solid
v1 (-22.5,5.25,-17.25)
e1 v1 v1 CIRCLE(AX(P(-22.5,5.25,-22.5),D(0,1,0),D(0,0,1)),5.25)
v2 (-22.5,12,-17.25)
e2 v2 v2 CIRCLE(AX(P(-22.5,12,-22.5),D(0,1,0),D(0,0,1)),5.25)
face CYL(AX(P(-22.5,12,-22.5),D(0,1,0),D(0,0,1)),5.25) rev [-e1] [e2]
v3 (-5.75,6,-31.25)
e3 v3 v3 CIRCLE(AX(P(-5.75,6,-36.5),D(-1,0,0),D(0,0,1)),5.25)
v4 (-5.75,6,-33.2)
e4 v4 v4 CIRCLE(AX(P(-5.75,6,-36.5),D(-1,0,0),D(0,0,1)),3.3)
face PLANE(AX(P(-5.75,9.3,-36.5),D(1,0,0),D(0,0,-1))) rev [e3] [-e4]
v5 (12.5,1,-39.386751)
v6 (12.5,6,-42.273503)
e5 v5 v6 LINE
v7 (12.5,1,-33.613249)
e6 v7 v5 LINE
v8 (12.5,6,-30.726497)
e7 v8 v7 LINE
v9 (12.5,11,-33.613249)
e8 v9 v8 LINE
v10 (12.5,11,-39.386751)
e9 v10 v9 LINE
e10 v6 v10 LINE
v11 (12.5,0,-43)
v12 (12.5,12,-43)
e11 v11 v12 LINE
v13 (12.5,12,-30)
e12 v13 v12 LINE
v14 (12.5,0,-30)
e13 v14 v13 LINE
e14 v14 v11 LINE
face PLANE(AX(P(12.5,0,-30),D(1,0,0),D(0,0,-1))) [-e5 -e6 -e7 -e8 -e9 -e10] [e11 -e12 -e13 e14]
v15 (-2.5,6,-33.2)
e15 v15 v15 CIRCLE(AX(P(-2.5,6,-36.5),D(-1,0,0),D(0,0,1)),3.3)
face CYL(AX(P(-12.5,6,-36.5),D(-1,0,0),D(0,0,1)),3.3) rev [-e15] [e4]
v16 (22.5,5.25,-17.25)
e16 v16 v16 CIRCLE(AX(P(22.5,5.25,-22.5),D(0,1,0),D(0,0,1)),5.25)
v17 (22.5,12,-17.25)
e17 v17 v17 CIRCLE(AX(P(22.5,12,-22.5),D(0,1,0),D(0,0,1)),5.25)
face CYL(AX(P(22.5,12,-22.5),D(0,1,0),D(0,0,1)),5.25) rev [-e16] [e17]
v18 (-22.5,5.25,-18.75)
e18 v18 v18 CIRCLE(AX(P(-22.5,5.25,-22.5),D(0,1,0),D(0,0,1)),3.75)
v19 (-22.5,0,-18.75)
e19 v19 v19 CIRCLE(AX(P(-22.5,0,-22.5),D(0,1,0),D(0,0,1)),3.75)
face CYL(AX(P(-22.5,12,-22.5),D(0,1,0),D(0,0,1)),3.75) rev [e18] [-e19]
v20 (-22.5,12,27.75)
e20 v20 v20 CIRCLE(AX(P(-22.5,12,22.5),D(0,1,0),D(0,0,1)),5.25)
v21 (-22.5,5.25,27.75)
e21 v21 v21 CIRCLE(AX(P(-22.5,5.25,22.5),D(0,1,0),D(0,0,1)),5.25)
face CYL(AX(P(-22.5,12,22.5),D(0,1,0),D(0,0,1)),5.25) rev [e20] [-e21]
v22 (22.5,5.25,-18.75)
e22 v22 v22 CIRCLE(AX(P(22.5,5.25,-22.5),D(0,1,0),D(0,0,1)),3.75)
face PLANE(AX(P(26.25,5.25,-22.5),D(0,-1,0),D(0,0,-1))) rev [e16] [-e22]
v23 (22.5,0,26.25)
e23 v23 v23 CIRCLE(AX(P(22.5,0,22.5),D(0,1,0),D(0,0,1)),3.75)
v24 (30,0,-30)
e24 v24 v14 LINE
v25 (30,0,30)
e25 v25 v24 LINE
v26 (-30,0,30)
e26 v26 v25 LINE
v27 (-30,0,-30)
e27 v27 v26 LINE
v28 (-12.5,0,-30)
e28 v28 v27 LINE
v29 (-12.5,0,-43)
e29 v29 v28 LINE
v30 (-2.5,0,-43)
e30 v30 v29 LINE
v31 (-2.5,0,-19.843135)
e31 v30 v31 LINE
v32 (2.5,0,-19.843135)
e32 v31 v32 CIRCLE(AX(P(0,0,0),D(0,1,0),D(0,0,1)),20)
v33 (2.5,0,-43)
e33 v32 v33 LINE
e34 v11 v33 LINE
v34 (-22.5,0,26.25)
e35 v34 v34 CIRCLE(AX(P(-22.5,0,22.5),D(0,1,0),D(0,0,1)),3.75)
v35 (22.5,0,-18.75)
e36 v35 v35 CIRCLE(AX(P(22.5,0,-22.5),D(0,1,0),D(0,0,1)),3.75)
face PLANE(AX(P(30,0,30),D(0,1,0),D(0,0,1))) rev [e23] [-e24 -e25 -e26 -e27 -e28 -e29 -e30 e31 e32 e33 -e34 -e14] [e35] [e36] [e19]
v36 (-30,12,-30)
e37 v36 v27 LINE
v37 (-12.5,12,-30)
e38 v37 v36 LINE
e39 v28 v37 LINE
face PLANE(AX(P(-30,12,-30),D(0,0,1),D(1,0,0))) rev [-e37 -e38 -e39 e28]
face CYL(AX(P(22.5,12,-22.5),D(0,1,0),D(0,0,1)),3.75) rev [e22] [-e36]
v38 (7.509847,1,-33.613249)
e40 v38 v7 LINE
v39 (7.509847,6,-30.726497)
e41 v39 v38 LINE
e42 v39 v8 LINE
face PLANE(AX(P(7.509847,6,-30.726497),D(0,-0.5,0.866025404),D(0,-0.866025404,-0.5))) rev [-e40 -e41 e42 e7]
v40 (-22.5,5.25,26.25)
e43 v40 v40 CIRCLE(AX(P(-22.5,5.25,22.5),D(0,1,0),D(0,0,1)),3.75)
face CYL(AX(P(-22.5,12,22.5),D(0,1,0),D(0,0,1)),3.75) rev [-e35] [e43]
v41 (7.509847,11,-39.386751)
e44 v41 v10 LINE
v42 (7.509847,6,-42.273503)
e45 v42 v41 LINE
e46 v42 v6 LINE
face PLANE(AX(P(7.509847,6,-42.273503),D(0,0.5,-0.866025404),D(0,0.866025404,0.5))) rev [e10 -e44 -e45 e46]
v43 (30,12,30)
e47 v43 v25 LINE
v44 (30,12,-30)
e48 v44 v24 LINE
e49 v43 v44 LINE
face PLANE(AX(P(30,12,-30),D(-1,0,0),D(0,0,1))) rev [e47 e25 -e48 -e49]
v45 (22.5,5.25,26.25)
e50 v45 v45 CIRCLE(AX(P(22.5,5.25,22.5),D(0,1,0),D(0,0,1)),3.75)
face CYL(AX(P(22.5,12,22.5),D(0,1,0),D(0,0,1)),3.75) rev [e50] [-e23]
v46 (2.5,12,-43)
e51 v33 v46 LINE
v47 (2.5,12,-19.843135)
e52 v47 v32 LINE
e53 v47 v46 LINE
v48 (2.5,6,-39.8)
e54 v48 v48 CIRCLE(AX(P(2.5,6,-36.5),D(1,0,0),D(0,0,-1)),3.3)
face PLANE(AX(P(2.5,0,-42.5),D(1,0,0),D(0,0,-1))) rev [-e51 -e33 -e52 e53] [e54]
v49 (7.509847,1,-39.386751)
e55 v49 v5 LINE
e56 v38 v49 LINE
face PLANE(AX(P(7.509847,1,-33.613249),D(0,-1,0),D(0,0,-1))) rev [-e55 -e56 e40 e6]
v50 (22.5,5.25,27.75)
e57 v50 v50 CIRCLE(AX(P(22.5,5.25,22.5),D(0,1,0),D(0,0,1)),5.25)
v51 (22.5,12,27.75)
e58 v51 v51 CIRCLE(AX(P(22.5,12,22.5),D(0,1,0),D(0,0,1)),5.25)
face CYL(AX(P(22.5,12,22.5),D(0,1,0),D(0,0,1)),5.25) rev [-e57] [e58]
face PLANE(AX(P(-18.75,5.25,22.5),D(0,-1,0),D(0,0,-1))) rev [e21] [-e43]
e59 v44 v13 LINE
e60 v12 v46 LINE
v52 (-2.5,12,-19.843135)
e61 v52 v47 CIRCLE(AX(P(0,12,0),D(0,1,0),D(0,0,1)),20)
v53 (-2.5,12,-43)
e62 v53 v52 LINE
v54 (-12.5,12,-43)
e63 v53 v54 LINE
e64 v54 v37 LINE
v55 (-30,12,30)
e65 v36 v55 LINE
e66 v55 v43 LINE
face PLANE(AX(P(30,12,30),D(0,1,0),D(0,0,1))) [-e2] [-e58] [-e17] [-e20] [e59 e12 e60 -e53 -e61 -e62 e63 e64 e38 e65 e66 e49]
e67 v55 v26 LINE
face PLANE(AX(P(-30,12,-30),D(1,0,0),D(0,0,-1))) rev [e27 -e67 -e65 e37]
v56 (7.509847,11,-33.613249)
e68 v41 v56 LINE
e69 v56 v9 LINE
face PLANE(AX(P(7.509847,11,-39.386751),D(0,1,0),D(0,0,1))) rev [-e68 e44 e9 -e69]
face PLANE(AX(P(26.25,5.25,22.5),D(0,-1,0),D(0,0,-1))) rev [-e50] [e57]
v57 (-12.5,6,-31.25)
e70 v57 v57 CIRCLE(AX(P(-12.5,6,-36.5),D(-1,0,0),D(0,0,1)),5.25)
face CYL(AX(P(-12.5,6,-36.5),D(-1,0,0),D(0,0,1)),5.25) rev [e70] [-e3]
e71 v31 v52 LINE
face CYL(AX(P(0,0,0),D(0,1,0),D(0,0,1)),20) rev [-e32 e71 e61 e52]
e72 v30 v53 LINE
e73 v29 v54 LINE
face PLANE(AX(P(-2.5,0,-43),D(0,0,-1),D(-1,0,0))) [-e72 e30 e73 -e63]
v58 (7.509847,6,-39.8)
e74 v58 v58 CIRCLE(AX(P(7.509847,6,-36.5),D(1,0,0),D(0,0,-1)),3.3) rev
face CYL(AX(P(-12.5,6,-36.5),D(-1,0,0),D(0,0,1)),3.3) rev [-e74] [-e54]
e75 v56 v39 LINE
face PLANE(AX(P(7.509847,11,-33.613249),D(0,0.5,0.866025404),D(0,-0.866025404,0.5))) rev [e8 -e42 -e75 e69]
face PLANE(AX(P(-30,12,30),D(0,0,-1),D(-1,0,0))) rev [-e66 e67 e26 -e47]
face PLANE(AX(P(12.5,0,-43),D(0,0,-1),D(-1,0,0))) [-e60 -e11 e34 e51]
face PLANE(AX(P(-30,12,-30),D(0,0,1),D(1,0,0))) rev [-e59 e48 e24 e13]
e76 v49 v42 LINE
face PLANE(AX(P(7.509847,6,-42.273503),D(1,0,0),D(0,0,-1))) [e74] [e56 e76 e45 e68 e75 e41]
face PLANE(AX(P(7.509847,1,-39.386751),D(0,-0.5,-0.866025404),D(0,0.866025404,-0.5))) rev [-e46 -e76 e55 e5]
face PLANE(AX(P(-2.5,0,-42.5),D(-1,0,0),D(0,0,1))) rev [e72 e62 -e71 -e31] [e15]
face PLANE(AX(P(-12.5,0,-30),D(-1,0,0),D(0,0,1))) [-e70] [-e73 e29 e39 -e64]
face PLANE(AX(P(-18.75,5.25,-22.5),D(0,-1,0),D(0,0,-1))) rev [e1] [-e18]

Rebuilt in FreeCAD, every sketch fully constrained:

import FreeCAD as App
import Part
import Sketcher
from FreeCAD import Vector
Q = App.Units.Quantity

doc = App.newDocument("Part")
body = doc.addObject("PartDesign::Body", "Body")

sketch1 = doc.addObject("Sketcher::SketchObject", "Sketch")
body.addObject(sketch1)
sketch1.AttachmentSupport = (doc.XZ_Plane, [""])
sketch1.MapMode = "FlatFace"
sketch1.addGeometry(Part.LineSegment(Vector(-30, -30, 0), Vector(-30, 30, 0)), False)
sketch1.addGeometry(Part.LineSegment(Vector(-30, 30, 0), Vector(30, 30, 0)), False)
sketch1.addGeometry(Part.LineSegment(Vector(30, 30, 0), Vector(30, -30, 0)), False)
sketch1.addGeometry(Part.LineSegment(Vector(30, -30, 0), Vector(-30, -30, 0)), False)
sketch1.addConstraint(Sketcher.Constraint("Coincident", 0, 2, 1, 1))
sketch1.addConstraint(Sketcher.Constraint("Coincident", 1, 2, 2, 1))
sketch1.addConstraint(Sketcher.Constraint("Coincident", 2, 2, 3, 1))
sketch1.addConstraint(Sketcher.Constraint("Coincident", 3, 2, 0, 1))
sketch1.addConstraint(Sketcher.Constraint("Vertical", 0))
sketch1.addConstraint(Sketcher.Constraint("Horizontal", 1))
sketch1.addConstraint(Sketcher.Constraint("Vertical", 2))
sketch1.addConstraint(Sketcher.Constraint("Horizontal", 3))
sketch1.addConstraint(Sketcher.Constraint("Symmetric", 0, 2, 2, 2, -1, 1))
sketch1.addConstraint(Sketcher.Constraint("Equal", 3, 0))
sketch1.addConstraint(Sketcher.Constraint("DistanceX", 1, 1, 1, 2, 60.0))
pad1 = doc.addObject("PartDesign::Pad", "Pad")
body.addObject(pad1)
pad1.Profile = sketch1
pad1.Length = 12
pad1.Reversed = True

sketch2 = doc.addObject("Sketcher::SketchObject", "Sketch001")
body.addObject(sketch2)
sketch2.AttachmentSupport = (doc.XZ_Plane, [""])
sketch2.MapMode = "FlatFace"
sketch2.AttachmentOffset = App.Placement(Vector(0, 0, -12), App.Rotation())
sketch2.addGeometry(Part.Circle(Vector(0, 0, 0), Vector(0, 0, 1), 20), False)
sketch2.addConstraint(Sketcher.Constraint("Coincident", 0, 3, -1, 1))
sketch2.addConstraint(Sketcher.Constraint("Diameter", 0, 40.0))
pocket1 = doc.addObject("PartDesign::Pocket", "Pocket")
body.addObject(pocket1)
pocket1.Profile = sketch2
pocket1.Length = 12
pocket1.Reversed = True

sketch3 = doc.addObject("Sketcher::SketchObject", "Sketch002")
body.addObject(sketch3)
sketch3.AttachmentSupport = (doc.XZ_Plane, [""])
sketch3.MapMode = "FlatFace"
sketch3.AttachmentOffset = App.Placement(Vector(0, 0, -12), App.Rotation())
sketch3.addGeometry(Part.LineSegment(Vector(2.5, -17.5, 0), Vector(2.5, -42.5, 0)), False)
sketch3.addGeometry(Part.LineSegment(Vector(2.5, -42.5, 0), Vector(-2.5, -42.5, 0)), False)
sketch3.addGeometry(Part.LineSegment(Vector(-2.5, -42.5, 0), Vector(-2.5, -17.5, 0)), False)
sketch3.addGeometry(Part.LineSegment(Vector(-2.5, -17.5, 0), Vector(2.5, -17.5, 0)), False)
sketch3.addConstraint(Sketcher.Constraint("Coincident", 0, 2, 1, 1))
sketch3.addConstraint(Sketcher.Constraint("Coincident", 1, 2, 2, 1))
sketch3.addConstraint(Sketcher.Constraint("Coincident", 2, 2, 3, 1))
sketch3.addConstraint(Sketcher.Constraint("Coincident", 3, 2, 0, 1))
sketch3.addConstraint(Sketcher.Constraint("Vertical", 0))
sketch3.addConstraint(Sketcher.Constraint("Horizontal", 1))
sketch3.addConstraint(Sketcher.Constraint("Vertical", 2))
sketch3.addConstraint(Sketcher.Constraint("Horizontal", 3))
sketch3.addConstraint(Sketcher.Constraint("DistanceX", 1, 2, 1, 1, 5.0))
sketch3.addConstraint(Sketcher.Constraint("DistanceY", 0, 2, 0, 1, 25.0))
sketch3.addConstraint(Sketcher.Constraint("DistanceX", -1, 1, 0, 2, 2.5))
sketch3.addConstraint(Sketcher.Constraint("DistanceY", 0, 2, -1, 1, 42.5))
pocket2 = doc.addObject("PartDesign::Pocket", "Pocket001")
body.addObject(pocket2)
pocket2.Profile = sketch3
pocket2.Length = 12
pocket2.Reversed = True

sketch4 = doc.addObject("Sketcher::SketchObject", "Sketch003")
body.addObject(sketch4)
sketch4.AttachmentSupport = (doc.XZ_Plane, [""])
sketch4.MapMode = "FlatFace"
sketch4.AttachmentOffset = App.Placement(Vector(0, 0, -12), App.Rotation())
sketch4.addGeometry(Part.LineSegment(Vector(-2.5, -30, 0), Vector(-2.5, -43, 0)), False)
sketch4.addGeometry(Part.LineSegment(Vector(-2.5, -43, 0), Vector(-12.5, -43, 0)), False)
sketch4.addGeometry(Part.LineSegment(Vector(-12.5, -43, 0), Vector(-12.5, -30, 0)), False)
sketch4.addGeometry(Part.LineSegment(Vector(-12.5, -30, 0), Vector(-2.5, -30, 0)), False)
sketch4.addConstraint(Sketcher.Constraint("Coincident", 0, 2, 1, 1))
sketch4.addConstraint(Sketcher.Constraint("Coincident", 1, 2, 2, 1))
sketch4.addConstraint(Sketcher.Constraint("Coincident", 2, 2, 3, 1))
sketch4.addConstraint(Sketcher.Constraint("Coincident", 3, 2, 0, 1))
sketch4.addConstraint(Sketcher.Constraint("Vertical", 0))
sketch4.addConstraint(Sketcher.Constraint("Horizontal", 1))
sketch4.addConstraint(Sketcher.Constraint("Vertical", 2))
sketch4.addConstraint(Sketcher.Constraint("Horizontal", 3))
sketch4.addConstraint(Sketcher.Constraint("DistanceX", 1, 2, 1, 1, 10.0))
sketch4.addConstraint(Sketcher.Constraint("DistanceY", 0, 2, 0, 1, 13.0))
sketch4.addConstraint(Sketcher.Constraint("DistanceY", 0, 2, -1, 1, 43.0))
sketch4.addConstraint(Sketcher.Constraint("DistanceX", 0, 2, -1, 1, 2.5))
pad2 = doc.addObject("PartDesign::Pad", "Pad001")
body.addObject(pad2)
pad2.Profile = sketch4
pad2.Length = 12
doc.recompute()

linearpattern = doc.addObject("PartDesign::LinearPattern", "LinearPattern")
body.addObject(linearpattern)
linearpattern.Originals = [pad2]
linearpattern.Direction = (doc.X_Axis, [""])
linearpattern.Mode = "offset"
linearpattern.Offset = 15
linearpattern.Occurrences = 2
body.Tip = linearpattern

sketch5 = doc.addObject("Sketcher::SketchObject", "Sketch004")
body.addObject(sketch5)
sketch5.AttachmentSupport = (doc.YZ_Plane, [""])
sketch5.MapMode = "FlatFace"
sketch5.AttachmentOffset = App.Placement(Vector(0, 0, -12.5), App.Rotation())
sketch5.addGeometry(Part.Circle(Vector(6, -36.5, 0), Vector(0, 0, 1), 3.3), False)
sketch5.addConstraint(Sketcher.Constraint("Diameter", 0, 6.6))
sketch5.addConstraint(Sketcher.Constraint("DistanceX", -1, 1, 0, 3, 6.0))
sketch5.addConstraint(Sketcher.Constraint("DistanceY", 0, 3, -1, 1, 36.5))
doc.recompute()
hole = doc.addObject("PartDesign::Hole", "Hole")
body.addObject(hole)
hole.Profile = sketch5
hole.ThreadType = "None"
hole.Diameter = 6.6
hole.DepthType = "ThroughAll"
hole.HoleCutType = "Counterbore"
hole.HoleCutDiameter = 10.5
hole.HoleCutDepth = 6.75
hole.Reversed = True

sketch6 = doc.addObject("Sketcher::SketchObject", "Sketch005")
body.addObject(sketch6)
sketch6.AttachmentSupport = (doc.YZ_Plane, [""])
sketch6.MapMode = "FlatFace"
sketch6.AttachmentOffset = App.Placement(Vector(0, 0, 12.5), App.Rotation())
sketch6.addGeometry(Part.LineSegment(Vector(6, -42.273503, 0), Vector(11, -39.386751, 0)), False)
sketch6.addGeometry(Part.LineSegment(Vector(11, -39.386751, 0), Vector(11, -33.613249, 0)), False)
sketch6.addGeometry(Part.LineSegment(Vector(11, -33.613249, 0), Vector(6, -30.726497, 0)), False)
sketch6.addGeometry(Part.LineSegment(Vector(6, -30.726497, 0), Vector(1, -33.613249, 0)), False)
sketch6.addGeometry(Part.LineSegment(Vector(1, -33.613249, 0), Vector(1, -39.386751, 0)), False)
sketch6.addGeometry(Part.LineSegment(Vector(1, -39.386751, 0), Vector(6, -42.273503, 0)), False)
sketch6.addConstraint(Sketcher.Constraint("Coincident", 0, 2, 1, 1))
sketch6.addConstraint(Sketcher.Constraint("Coincident", 1, 2, 2, 1))
sketch6.addConstraint(Sketcher.Constraint("Coincident", 2, 2, 3, 1))
sketch6.addConstraint(Sketcher.Constraint("Coincident", 3, 2, 4, 1))
sketch6.addConstraint(Sketcher.Constraint("Coincident", 4, 2, 5, 1))
sketch6.addConstraint(Sketcher.Constraint("Coincident", 5, 2, 0, 1))
sketch6.addConstraint(Sketcher.Constraint("Vertical", 1))
sketch6.addConstraint(Sketcher.Constraint("Vertical", 4))
sketch6.addConstraint(Sketcher.Constraint("Parallel", 0, 3))
sketch6.addConstraint(Sketcher.Constraint("Parallel", 2, 5))
sketch6.addConstraint(Sketcher.Constraint("Horizontal", 1, 2, 3, 2))
sketch6.addConstraint(Sketcher.Constraint("Horizontal", 0, 2, 4, 2))
sketch6.addConstraint(Sketcher.Constraint("Vertical", 2, 2, 5, 2))
sketch6.addConstraint(Sketcher.Constraint("Angle", 0, Q("30 deg")))
sketch6.addConstraint(Sketcher.Constraint("DistanceX", -1, 1, 0, 2, 11.0))
sketch6.addConstraint(Sketcher.Constraint("DistanceX", -1, 1, 2, 2, 6.0))
sketch6.addConstraint(Sketcher.Constraint("DistanceY", 1, 1, 1, 2, 5.773503))
sketch6.addConstraint(Sketcher.Constraint("DistanceY", 0, 2, -1, 1, 39.386751))
pocket3 = doc.addObject("PartDesign::Pocket", "Pocket002")
body.addObject(pocket3)
pocket3.Profile = sketch6
pocket3.Length = 4.990153

sketch7 = doc.addObject("Sketcher::SketchObject", "Sketch006")
body.addObject(sketch7)
sketch7.AttachmentSupport = (doc.XZ_Plane, [""])
sketch7.MapMode = "FlatFace"
sketch7.AttachmentOffset = App.Placement(Vector(0, 0, -12), App.Rotation())
sketch7.addGeometry(Part.Circle(Vector(-22.5, -22.5, 0), Vector(0, 0, 1), 3.75), False)
sketch7.addConstraint(Sketcher.Constraint("Diameter", 0, 7.5))
sketch7.addConstraint(Sketcher.Constraint("DistanceX", 0, 3, -1, 1, 22.5))
sketch7.addConstraint(Sketcher.Constraint("DistanceY", 0, 3, -1, 1, 22.5))
doc.recompute()
hole2 = doc.addObject("PartDesign::Hole", "Hole001")
body.addObject(hole2)
hole2.Profile = sketch7
hole2.ThreadType = "None"
hole2.Diameter = 7.5
hole2.DepthType = "ThroughAll"
hole2.HoleCutType = "Counterbore"
hole2.HoleCutDiameter = 10.5
hole2.HoleCutDepth = 6.75
hole2.Reversed = True

sketch8 = doc.addObject("Sketcher::SketchObject", "Sketch007")
body.addObject(sketch8)
sketch8.AttachmentSupport = (doc.XZ_Plane, [""])
sketch8.MapMode = "FlatFace"
sketch8.AttachmentOffset = App.Placement(Vector(0, 0, -12), App.Rotation())
sketch8.addGeometry(Part.Circle(Vector(22.5, -22.5, 0), Vector(0, 0, 1), 3.75), False)
sketch8.addConstraint(Sketcher.Constraint("Diameter", 0, 7.5))
sketch8.addConstraint(Sketcher.Constraint("DistanceX", -1, 1, 0, 3, 22.5))
sketch8.addConstraint(Sketcher.Constraint("DistanceY", 0, 3, -1, 1, 22.5))
doc.recompute()
hole3 = doc.addObject("PartDesign::Hole", "Hole002")
body.addObject(hole3)
hole3.Profile = sketch8
hole3.ThreadType = "None"
hole3.Diameter = 7.5
hole3.DepthType = "ThroughAll"
hole3.HoleCutType = "Counterbore"
hole3.HoleCutDiameter = 10.5
hole3.HoleCutDepth = 6.75
hole3.Reversed = True

sketch9 = doc.addObject("Sketcher::SketchObject", "Sketch008")
body.addObject(sketch9)
sketch9.AttachmentSupport = (doc.XZ_Plane, [""])
sketch9.MapMode = "FlatFace"
sketch9.AttachmentOffset = App.Placement(Vector(0, 0, -12), App.Rotation())
sketch9.addGeometry(Part.Circle(Vector(22.5, 22.5, 0), Vector(0, 0, 1), 3.75), False)
sketch9.addConstraint(Sketcher.Constraint("Diameter", 0, 7.5))
sketch9.addConstraint(Sketcher.Constraint("DistanceX", -1, 1, 0, 3, 22.5))
sketch9.addConstraint(Sketcher.Constraint("DistanceY", -1, 1, 0, 3, 22.5))
doc.recompute()
hole4 = doc.addObject("PartDesign::Hole", "Hole003")
body.addObject(hole4)
hole4.Profile = sketch9
hole4.ThreadType = "None"
hole4.Diameter = 7.5
hole4.DepthType = "ThroughAll"
hole4.HoleCutType = "Counterbore"
hole4.HoleCutDiameter = 10.5
hole4.HoleCutDepth = 6.75
hole4.Reversed = True

sketch10 = doc.addObject("Sketcher::SketchObject", "Sketch009")
body.addObject(sketch10)
sketch10.AttachmentSupport = (doc.XZ_Plane, [""])
sketch10.MapMode = "FlatFace"
sketch10.AttachmentOffset = App.Placement(Vector(0, 0, -12), App.Rotation())
sketch10.addGeometry(Part.Circle(Vector(-22.5, 22.5, 0), Vector(0, 0, 1), 3.75), False)
sketch10.addConstraint(Sketcher.Constraint("Diameter", 0, 7.5))
sketch10.addConstraint(Sketcher.Constraint("DistanceX", 0, 3, -1, 1, 22.5))
sketch10.addConstraint(Sketcher.Constraint("DistanceY", -1, 1, 0, 3, 22.5))
doc.recompute()
hole5 = doc.addObject("PartDesign::Hole", "Hole004")
body.addObject(hole5)
hole5.Profile = sketch10
hole5.ThreadType = "None"
hole5.Diameter = 7.5
hole5.DepthType = "ThroughAll"
hole5.HoleCutType = "Counterbore"
hole5.HoleCutDiameter = 10.5
hole5.HoleCutDepth = 6.75
hole5.Reversed = True

doc.recompute()
